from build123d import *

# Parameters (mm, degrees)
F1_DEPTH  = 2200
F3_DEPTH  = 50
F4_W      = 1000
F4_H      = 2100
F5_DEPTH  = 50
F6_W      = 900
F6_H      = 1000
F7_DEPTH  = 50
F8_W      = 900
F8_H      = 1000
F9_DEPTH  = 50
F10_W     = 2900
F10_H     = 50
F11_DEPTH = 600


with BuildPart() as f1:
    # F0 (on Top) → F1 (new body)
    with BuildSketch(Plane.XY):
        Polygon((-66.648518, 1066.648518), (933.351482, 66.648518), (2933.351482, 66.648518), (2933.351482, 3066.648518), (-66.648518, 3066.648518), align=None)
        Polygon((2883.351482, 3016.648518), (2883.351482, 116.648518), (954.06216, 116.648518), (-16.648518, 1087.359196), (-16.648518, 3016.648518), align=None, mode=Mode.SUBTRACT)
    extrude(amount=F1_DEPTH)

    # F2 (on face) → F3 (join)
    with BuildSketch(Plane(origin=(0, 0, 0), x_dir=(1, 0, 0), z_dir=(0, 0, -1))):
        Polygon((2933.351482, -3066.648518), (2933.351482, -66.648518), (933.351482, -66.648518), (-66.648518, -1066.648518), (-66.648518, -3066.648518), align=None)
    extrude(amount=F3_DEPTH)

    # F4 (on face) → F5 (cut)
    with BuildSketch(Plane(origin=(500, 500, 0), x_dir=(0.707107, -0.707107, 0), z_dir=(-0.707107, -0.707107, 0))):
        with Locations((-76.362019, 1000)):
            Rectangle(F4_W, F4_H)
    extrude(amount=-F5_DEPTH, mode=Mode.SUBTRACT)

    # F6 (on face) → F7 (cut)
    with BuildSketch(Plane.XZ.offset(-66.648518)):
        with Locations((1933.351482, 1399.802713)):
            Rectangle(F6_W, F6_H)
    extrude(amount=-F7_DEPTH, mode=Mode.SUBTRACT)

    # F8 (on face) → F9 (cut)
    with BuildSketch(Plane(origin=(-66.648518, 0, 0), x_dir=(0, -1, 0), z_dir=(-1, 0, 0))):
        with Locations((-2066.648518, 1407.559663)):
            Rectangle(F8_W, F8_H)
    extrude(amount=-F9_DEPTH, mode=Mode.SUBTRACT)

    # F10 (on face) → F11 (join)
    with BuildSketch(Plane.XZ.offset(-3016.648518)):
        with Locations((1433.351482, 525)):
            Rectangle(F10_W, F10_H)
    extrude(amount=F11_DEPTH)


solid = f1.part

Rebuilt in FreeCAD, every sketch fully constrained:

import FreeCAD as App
import Part
import Sketcher
from FreeCAD import Vector


def add_polygon(sketch, points):
    """Adds a closed chain of lines whose ends are joined by coincident constraints."""
    first, n = sketch.GeometryCount, len(points)
    for a, b in zip(points, points[1:] + points[:1]):
        sketch.addGeometry(Part.LineSegment(App.Vector(*a, 0), App.Vector(*b, 0)), False)
    for i in range(n):
        sketch.addConstraint(Sketcher.Constraint("Coincident", first + i, 2, first + (i + 1) % n, 1))

doc = App.newDocument("Part")
body = doc.addObject("PartDesign::Body", "Body")

sketch1 = body.newObject("Sketcher::SketchObject", "Sketch")
sketch1.AttachmentSupport = (doc.getObject("XY_Plane"), [""])
sketch1.MapMode = "FlatFace"
add_polygon(sketch1, [(-66.648518, 1066.648518), (933.351482, 66.648518), (2933.351482, 66.648518), (2933.351482, 3066.648518), (-66.648518, 3066.648518)])
add_polygon(sketch1, [(-16.648518, 3016.648518), (2883.351482, 3016.648518), (2883.351482, 116.648518), (954.06216, 116.648518), (-16.648518, 1087.359196)])
sketch1.addConstraint(Sketcher.Constraint("Horizontal", 1))
sketch1.addConstraint(Sketcher.Constraint("Vertical", 2))
sketch1.addConstraint(Sketcher.Constraint("Horizontal", 3))
sketch1.addConstraint(Sketcher.Constraint("Vertical", 4))
sketch1.addConstraint(Sketcher.Constraint("Horizontal", 5))
sketch1.addConstraint(Sketcher.Constraint("Vertical", 6))
sketch1.addConstraint(Sketcher.Constraint("Horizontal", 7))
sketch1.addConstraint(Sketcher.Constraint("Vertical", 9))
sketch1.addConstraint(Sketcher.Constraint("Parallel", 0, 8))
sketch1.addConstraint(Sketcher.Constraint("Equal", 3, 2))
sketch1.addConstraint(Sketcher.Constraint("Equal", 1, 4))
sketch1.addConstraint(Sketcher.Constraint("Equal", 5, 6))
sketch1.addConstraint(Sketcher.Constraint("DistanceX", 1, 1, 1, 2, 2000.0))
sketch1.addConstraint(Sketcher.Constraint("DistanceX", 3, 2, 3, 1, 3000.0))
sketch1.addConstraint(Sketcher.Constraint("DistanceX", 5, 1, 5, 2, 2900.0))
sketch1.addConstraint(Sketcher.Constraint("DistanceX", 5, 2, 2, 2, 50.0))
sketch1.addConstraint(Sketcher.Constraint("DistanceY", 5, 2, 2, 2, 50.0))
sketch1.addConstraint(Sketcher.Constraint("DistanceX", 7, 2, 7, 1, 1929.289322))
sketch1.addConstraint(Sketcher.Constraint("DistanceX", -1, 1, 0, 2, 933.351482))
sketch1.addConstraint(Sketcher.Constraint("DistanceY", -1, 1, 4, 2, 1066.648518))
pad1 = body.newObject("PartDesign::Pad", "Pad")
pad1.Profile = sketch1
pad1.Length = 2200

sketch2 = body.newObject("Sketcher::SketchObject", "Sketch001")
sketch2.AttachmentSupport = (doc.getObject("XY_Plane"), [""])
sketch2.MapMode = "FlatFace"
add_polygon(sketch2, [(2933.351482, 3066.648518), (2933.351482, 66.648518), (933.351482, 66.648518), (-66.648518, 1066.648518), (-66.648518, 3066.648518)])
sketch2.addConstraint(Sketcher.Constraint("Vertical", 0))
sketch2.addConstraint(Sketcher.Constraint("Horizontal", 1))
sketch2.addConstraint(Sketcher.Constraint("Vertical", 3))
sketch2.addConstraint(Sketcher.Constraint("Horizontal", 4))
sketch2.addConstraint(Sketcher.Constraint("Equal", 4, 0))
sketch2.addConstraint(Sketcher.Constraint("Equal", 1, 3))
sketch2.addConstraint(Sketcher.Constraint("DistanceX", 1, 2, 1, 1, 2000.0))
sketch2.addConstraint(Sketcher.Constraint("DistanceX", 4, 1, 4, 2, 3000.0))
sketch2.addConstraint(Sketcher.Constraint("DistanceX", -1, 1, 1, 2, 933.351482))
sketch2.addConstraint(Sketcher.Constraint("DistanceY", -1, 1, 2, 2, 1066.648518))
pad2 = body.newObject("PartDesign::Pad", "Pad001")
pad2.Profile = sketch2
pad2.Length = 50
pad2.Reversed = True

sketch3 = body.newObject("Sketcher::SketchObject", "Sketch002")
sketch3.Placement = App.Placement(Vector(500, 500, 0), App.Rotation(Vector(0.707106781, -0.707106781, 0), Vector(0, 0, 0.999999999), Vector(-0.707106781, -0.707106781, 0), "ZXY"))
add_polygon(sketch3, [(-576.362019, 2049.999998), (-576.362019, -50), (423.637981, -50), (423.637981, 2049.999998)])
sketch3.addConstraint(Sketcher.Constraint("Vertical", 0))
sketch3.addConstraint(Sketcher.Constraint("Horizontal", 1))
sketch3.addConstraint(Sketcher.Constraint("Vertical", 2))
sketch3.addConstraint(Sketcher.Constraint("Horizontal", 3))
sketch3.addConstraint(Sketcher.Constraint("DistanceX", 1, 1, 1, 2, 999.999999))
sketch3.addConstraint(Sketcher.Constraint("DistanceY", 0, 2, -1, 1, 50.0))
sketch3.addConstraint(Sketcher.Constraint("DistanceY", 0, 2, 0, 1, 2099.999998))
sketch3.addConstraint(Sketcher.Constraint("DistanceX", 0, 2, -1, 1, 576.362019))
pocket1 = body.newObject("PartDesign::Pocket", "Pocket")
pocket1.Profile = sketch3
pocket1.Length = 50

sketch4 = body.newObject("Sketcher::SketchObject", "Sketch003")
sketch4.AttachmentSupport = (doc.getObject("XZ_Plane"), [""])
sketch4.MapMode = "FlatFace"
sketch4.AttachmentOffset = App.Placement(Vector(0, 0, -66.648518), App.Rotation())
add_polygon(sketch4, [(1483.351482, 1899.802713), (1483.351482, 899.802713), (2383.351482, 899.802713), (2383.351482, 1899.802713)])
sketch4.addConstraint(Sketcher.Constraint("Vertical", 0))
sketch4.addConstraint(Sketcher.Constraint("Horizontal", 1))
sketch4.addConstraint(Sketcher.Constraint("Vertical", 2))
sketch4.addConstraint(Sketcher.Constraint("Horizontal", 3))
sketch4.addConstraint(Sketcher.Constraint("DistanceX", 1, 1, 1, 2, 900.0))
sketch4.addConstraint(Sketcher.Constraint("DistanceY", 0, 2, 0, 1, 1000.0))
sketch4.addConstraint(Sketcher.Constraint("DistanceX", -1, 1, 0, 2, 1483.351482))
sketch4.addConstraint(Sketcher.Constraint("DistanceY", -1, 1, 0, 2, 899.802713))
pocket2 = body.newObject("PartDesign::Pocket", "Pocket001")
pocket2.Profile = sketch4
pocket2.Length = 50

sketch5 = body.newObject("Sketcher::SketchObject", "Sketch004")
sketch5.AttachmentSupport = (doc.getObject("YZ_Plane"), [""])
sketch5.MapMode = "FlatFace"
sketch5.AttachmentOffset = App.Placement(Vector(0, 0, -66.648518), App.Rotation())
add_polygon(sketch5, [(2516.648518, 1907.559663), (2516.648518, 907.559663), (1616.648518, 907.559663), (1616.648518, 1907.559663)])
sketch5.addConstraint(Sketcher.Constraint("Vertical", 0))
sketch5.addConstraint(Sketcher.Constraint("Horizontal", 1))
sketch5.addConstraint(Sketcher.Constraint("Vertical", 2))
sketch5.addConstraint(Sketcher.Constraint("Horizontal", 3))
sketch5.addConstraint(Sketcher.Constraint("DistanceX", 1, 2, 1, 1, 900.0))
sketch5.addConstraint(Sketcher.Constraint("DistanceY", 0, 2, 0, 1, 1000.0))
sketch5.addConstraint(Sketcher.Constraint("DistanceX", -1, 1, 1, 2, 1616.648518))
sketch5.addConstraint(Sketcher.Constraint("DistanceY", -1, 1, 0, 2, 907.559663))
pocket3 = body.newObject("PartDesign::Pocket", "Pocket002")
pocket3.Profile = sketch5
pocket3.Length = 50
pocket3.Reversed = True

sketch6 = body.newObject("Sketcher::SketchObject", "Sketch005")
sketch6.AttachmentSupport = (doc.getObject("XZ_Plane"), [""])
sketch6.MapMode = "FlatFace"
sketch6.AttachmentOffset = App.Placement(Vector(0, 0, -3016.648518), App.Rotation())
add_polygon(sketch6, [(-16.648518, 550), (-16.648518, 500), (2883.351482, 500), (2883.351482, 550)])
sketch6.addConstraint(Sketcher.Constraint("Vertical", 0))
sketch6.addConstraint(Sketcher.Constraint("Horizontal", 1))
sketch6.addConstraint(Sketcher.Constraint("Vertical", 2))
sketch6.addConstraint(Sketcher.Constraint("Horizontal", 3))
sketch6.addConstraint(Sketcher.Constraint("DistanceX", 1, 1, 1, 2, 2900.0))
sketch6.addConstraint(Sketcher.Constraint("DistanceY", 0, 2, 0, 1, 50.0))
sketch6.addConstraint(Sketcher.Constraint("DistanceY", -1, 1, 0, 2, 500.0))
sketch6.addConstraint(Sketcher.Constraint("DistanceX", 0, 2, -1, 1, 16.648518))
pad3 = body.newObject("PartDesign::Pad", "Pad002")
pad3.Profile = sketch6
pad3.Length = 600

doc.recompute()
